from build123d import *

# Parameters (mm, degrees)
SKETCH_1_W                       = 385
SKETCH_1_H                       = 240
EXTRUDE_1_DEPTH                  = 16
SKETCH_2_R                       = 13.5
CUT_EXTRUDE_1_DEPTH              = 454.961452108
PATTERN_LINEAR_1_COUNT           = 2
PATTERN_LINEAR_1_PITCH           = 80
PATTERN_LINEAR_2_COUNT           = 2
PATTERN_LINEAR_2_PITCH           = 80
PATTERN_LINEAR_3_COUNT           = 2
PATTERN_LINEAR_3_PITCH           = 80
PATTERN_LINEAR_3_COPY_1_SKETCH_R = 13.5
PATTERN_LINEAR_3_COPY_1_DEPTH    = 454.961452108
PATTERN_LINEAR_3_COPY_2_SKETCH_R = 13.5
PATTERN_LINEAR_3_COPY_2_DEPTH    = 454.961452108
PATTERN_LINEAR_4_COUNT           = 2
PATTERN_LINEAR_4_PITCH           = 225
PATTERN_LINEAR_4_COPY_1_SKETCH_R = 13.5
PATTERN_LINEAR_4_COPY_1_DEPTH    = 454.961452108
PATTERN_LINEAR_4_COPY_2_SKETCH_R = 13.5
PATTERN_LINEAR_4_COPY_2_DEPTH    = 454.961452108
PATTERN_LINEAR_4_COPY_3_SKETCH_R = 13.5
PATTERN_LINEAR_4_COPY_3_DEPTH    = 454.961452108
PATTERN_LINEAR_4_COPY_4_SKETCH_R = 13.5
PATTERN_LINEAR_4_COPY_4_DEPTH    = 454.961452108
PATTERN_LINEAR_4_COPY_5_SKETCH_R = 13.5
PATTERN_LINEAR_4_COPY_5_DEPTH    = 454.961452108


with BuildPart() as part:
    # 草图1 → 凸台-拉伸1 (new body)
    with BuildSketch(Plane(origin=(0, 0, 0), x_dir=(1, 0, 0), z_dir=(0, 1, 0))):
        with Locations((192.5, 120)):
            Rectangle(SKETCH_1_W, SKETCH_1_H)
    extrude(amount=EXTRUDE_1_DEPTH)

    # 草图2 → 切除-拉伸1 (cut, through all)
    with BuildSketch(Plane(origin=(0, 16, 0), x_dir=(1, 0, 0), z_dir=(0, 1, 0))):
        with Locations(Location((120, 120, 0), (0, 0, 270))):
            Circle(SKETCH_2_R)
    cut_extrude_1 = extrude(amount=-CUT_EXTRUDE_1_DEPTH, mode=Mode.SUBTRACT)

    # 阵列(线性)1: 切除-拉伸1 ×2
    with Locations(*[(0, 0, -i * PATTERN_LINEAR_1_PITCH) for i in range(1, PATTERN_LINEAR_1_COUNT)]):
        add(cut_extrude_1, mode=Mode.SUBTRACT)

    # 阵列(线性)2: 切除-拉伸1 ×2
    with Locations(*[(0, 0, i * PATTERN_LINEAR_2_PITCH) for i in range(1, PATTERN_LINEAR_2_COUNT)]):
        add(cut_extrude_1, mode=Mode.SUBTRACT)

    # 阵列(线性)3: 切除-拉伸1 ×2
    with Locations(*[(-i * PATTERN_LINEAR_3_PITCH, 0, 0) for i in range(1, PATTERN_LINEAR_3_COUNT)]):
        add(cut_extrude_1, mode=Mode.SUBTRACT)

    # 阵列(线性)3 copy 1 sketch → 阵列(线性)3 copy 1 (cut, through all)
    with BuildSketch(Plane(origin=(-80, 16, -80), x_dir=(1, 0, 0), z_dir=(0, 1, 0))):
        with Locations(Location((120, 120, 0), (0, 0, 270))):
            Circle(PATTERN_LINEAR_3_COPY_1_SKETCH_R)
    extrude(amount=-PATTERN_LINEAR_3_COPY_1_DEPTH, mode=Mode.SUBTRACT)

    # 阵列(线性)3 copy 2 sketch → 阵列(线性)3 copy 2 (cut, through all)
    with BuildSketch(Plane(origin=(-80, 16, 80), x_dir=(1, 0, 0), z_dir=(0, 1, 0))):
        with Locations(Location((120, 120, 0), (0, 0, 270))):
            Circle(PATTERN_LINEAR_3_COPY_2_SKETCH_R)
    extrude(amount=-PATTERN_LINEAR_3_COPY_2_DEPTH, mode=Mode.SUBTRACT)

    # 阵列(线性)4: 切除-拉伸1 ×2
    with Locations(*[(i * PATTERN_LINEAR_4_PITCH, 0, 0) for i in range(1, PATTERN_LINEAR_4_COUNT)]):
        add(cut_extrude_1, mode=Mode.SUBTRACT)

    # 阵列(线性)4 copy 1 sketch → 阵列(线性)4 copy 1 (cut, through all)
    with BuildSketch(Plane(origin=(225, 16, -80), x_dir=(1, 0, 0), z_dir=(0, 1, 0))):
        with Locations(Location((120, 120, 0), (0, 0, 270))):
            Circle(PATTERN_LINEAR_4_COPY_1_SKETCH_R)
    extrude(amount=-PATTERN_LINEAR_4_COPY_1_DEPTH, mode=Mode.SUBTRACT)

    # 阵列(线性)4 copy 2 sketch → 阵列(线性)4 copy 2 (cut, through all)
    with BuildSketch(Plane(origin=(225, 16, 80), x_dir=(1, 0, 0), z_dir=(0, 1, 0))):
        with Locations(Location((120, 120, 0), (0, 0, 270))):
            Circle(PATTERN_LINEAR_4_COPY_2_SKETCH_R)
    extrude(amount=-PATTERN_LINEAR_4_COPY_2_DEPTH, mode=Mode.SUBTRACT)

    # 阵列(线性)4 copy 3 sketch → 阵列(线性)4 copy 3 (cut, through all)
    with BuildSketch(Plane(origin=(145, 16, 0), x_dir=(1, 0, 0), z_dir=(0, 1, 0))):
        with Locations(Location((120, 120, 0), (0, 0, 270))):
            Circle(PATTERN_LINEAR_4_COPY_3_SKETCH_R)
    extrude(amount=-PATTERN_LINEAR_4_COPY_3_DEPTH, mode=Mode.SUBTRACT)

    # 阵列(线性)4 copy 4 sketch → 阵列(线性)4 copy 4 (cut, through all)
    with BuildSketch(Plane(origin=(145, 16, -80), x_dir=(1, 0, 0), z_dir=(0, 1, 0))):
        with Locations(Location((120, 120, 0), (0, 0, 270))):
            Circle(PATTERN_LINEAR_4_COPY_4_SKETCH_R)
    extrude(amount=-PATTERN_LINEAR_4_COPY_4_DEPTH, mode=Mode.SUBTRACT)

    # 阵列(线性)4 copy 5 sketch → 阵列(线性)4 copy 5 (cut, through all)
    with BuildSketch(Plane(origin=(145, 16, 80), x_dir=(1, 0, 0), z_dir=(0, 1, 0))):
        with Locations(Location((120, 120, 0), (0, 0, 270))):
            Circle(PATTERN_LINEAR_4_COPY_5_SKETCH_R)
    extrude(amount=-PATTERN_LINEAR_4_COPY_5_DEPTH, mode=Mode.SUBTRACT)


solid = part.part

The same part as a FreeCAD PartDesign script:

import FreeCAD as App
import Part
import Sketcher
from FreeCAD import Vector
Q = App.Units.Quantity

doc = App.newDocument("Part")
body = doc.addObject("PartDesign::Body", "Body")

sketch1 = body.newObject("Sketcher::SketchObject", "Sketch")
sketch1.AttachmentSupport = (doc.getObject("XZ_Plane"), [""])
sketch1.MapMode = "FlatFace"
sketch1.addGeometry([
    Part.LineSegment(Vector(0, -240, 0), Vector(0, 0, 0)),
    Part.LineSegment(Vector(0, 0, 0), Vector(385, 0, 0)),
    Part.LineSegment(Vector(385, 0, 0), Vector(385, -240, 0)),
    Part.LineSegment(Vector(385, -240, 0), Vector(0, -240, 0)),
], False)
sketch1.addConstraint([
    Sketcher.Constraint("Coincident", 0, 2, 1, 1),
    Sketcher.Constraint("Coincident", 1, 2, 2, 1),
    Sketcher.Constraint("Coincident", 2, 2, 3, 1),
    Sketcher.Constraint("Coincident", 3, 2, 0, 1),
    Sketcher.Constraint("Vertical", 0),
    Sketcher.Constraint("Horizontal", 1),
    Sketcher.Constraint("Vertical", 2),
    Sketcher.Constraint("Horizontal", 3),
    Sketcher.Constraint("Coincident", 0, 2, -1, 1),
    Sketcher.Constraint("DistanceX", 1, 1, 1, 2, Q("385 mm")),
    Sketcher.Constraint("DistanceY", 0, 1, 0, 2, Q("240 mm")),
])
pad1 = body.newObject("PartDesign::Pad", "Pad")
pad1.Profile = sketch1
pad1.Length = 16
pad1.Reversed = True

sketch2 = body.newObject("Sketcher::SketchObject", "Sketch001")
sketch2.AttachmentSupport = (doc.getObject("XZ_Plane"), [""])
sketch2.MapMode = "FlatFace"
sketch2.AttachmentOffset = App.Placement(Vector(0, 0, -16), App.Rotation())
sketch2.addGeometry(Part.Circle(Vector(120, -120, 0), Vector(0, 0, 1), 14), False)
sketch2.addConstraint([
    Sketcher.Constraint("Diameter", 0, Q("27 mm")),
    Sketcher.Constraint("DistanceX", -1, 1, 0, 3, Q("120 mm")),
    Sketcher.Constraint("DistanceY", 0, 3, -1, 1, Q("120 mm")),
])
pocket1 = body.newObject("PartDesign::Pocket", "Pocket")
pocket1.Profile = sketch2
pocket1.Type = "ThroughAll"
pocket1.Reversed = True
doc.recompute()

linearpattern = body.newObject("PartDesign::LinearPattern", "LinearPattern")
linearpattern.Originals = [pocket1]
linearpattern.Direction = (doc.getObject("Z_Axis"), [""])
linearpattern.Mode = "offset"
linearpattern.Offset = 80
linearpattern.Occurrences = 2
linearpattern.Reversed = True
body.Tip = linearpattern
doc.recompute()

linearpattern2 = body.newObject("PartDesign::LinearPattern", "LinearPattern001")
linearpattern2.Originals = [pocket1]
linearpattern2.Direction = (doc.getObject("Z_Axis"), [""])
linearpattern2.Mode = "offset"
linearpattern2.Offset = 80
linearpattern2.Occurrences = 2
body.Tip = linearpattern2
doc.recompute()

linearpattern3 = body.newObject("PartDesign::LinearPattern", "LinearPattern002")
linearpattern3.Originals = [pocket1]
linearpattern3.Direction = (doc.getObject("X_Axis"), [""])
linearpattern3.Mode = "offset"
linearpattern3.Offset = 80
linearpattern3.Occurrences = 2
linearpattern3.Reversed = True
body.Tip = linearpattern3

sketch3 = body.newObject("Sketcher::SketchObject", "Sketch002")
sketch3.AttachmentSupport = (doc.getObject("XZ_Plane"), [""])
sketch3.MapMode = "FlatFace"
sketch3.AttachmentOffset = App.Placement(Vector(0, 0, -16), App.Rotation())
sketch3.addGeometry(Part.Circle(Vector(40, -200, 0), Vector(0, 0, 1), 14), False)
sketch3.addConstraint([
    Sketcher.Constraint("Diameter", 0, Q("27 mm")),
    Sketcher.Constraint("DistanceX", -1, 1, 0, 3, Q("40 mm")),
    Sketcher.Constraint("DistanceY", 0, 3, -1, 1, Q("200 mm")),
])
pocket2 = body.newObject("PartDesign::Pocket", "Pocket001")
pocket2.Profile = sketch3
pocket2.Type = "ThroughAll"
pocket2.Reversed = True

sketch4 = body.newObject("Sketcher::SketchObject", "Sketch003")
sketch4.AttachmentSupport = (doc.getObject("XZ_Plane"), [""])
sketch4.MapMode = "FlatFace"
sketch4.AttachmentOffset = App.Placement(Vector(0, 0, -16), App.Rotation())
sketch4.addGeometry(Part.Circle(Vector(40, -40, 0), Vector(0, 0, 1), 14), False)
sketch4.addConstraint([
    Sketcher.Constraint("Diameter", 0, Q("27 mm")),
    Sketcher.Constraint("DistanceX", -1, 1, 0, 3, Q("40 mm")),
    Sketcher.Constraint("DistanceY", 0, 3, -1, 1, Q("40 mm")),
])
pocket3 = body.newObject("PartDesign::Pocket", "Pocket002")
pocket3.Profile = sketch4
pocket3.Type = "ThroughAll"
pocket3.Reversed = True
doc.recompute()

linearpattern4 = body.newObject("PartDesign::LinearPattern", "LinearPattern003")
linearpattern4.Originals = [pocket1]
linearpattern4.Direction = (doc.getObject("X_Axis"), [""])
linearpattern4.Mode = "offset"
linearpattern4.Offset = 225
linearpattern4.Occurrences = 2
body.Tip = linearpattern4

sketch5 = body.newObject("Sketcher::SketchObject", "Sketch004")
sketch5.AttachmentSupport = (doc.getObject("XZ_Plane"), [""])
sketch5.MapMode = "FlatFace"
sketch5.AttachmentOffset = App.Placement(Vector(0, 0, -16), App.Rotation())
sketch5.addGeometry(Part.Circle(Vector(345, -200, 0), Vector(0, 0, 1), 14), False)
sketch5.addConstraint([
    Sketcher.Constraint("Diameter", 0, Q("27 mm")),
    Sketcher.Constraint("DistanceX", -1, 1, 0, 3, Q("345 mm")),
    Sketcher.Constraint("DistanceY", 0, 3, -1, 1, Q("200 mm")),
])
pocket4 = body.newObject("PartDesign::Pocket", "Pocket003")
pocket4.Profile = sketch5
pocket4.Type = "ThroughAll"
pocket4.Reversed = True

sketch6 = body.newObject("Sketcher::SketchObject", "Sketch005")
sketch6.AttachmentSupport = (doc.getObject("XZ_Plane"), [""])
sketch6.MapMode = "FlatFace"
sketch6.AttachmentOffset = App.Placement(Vector(0, 0, -16), App.Rotation())
sketch6.addGeometry(Part.Circle(Vector(345, -40, 0), Vector(0, 0, 1), 14), False)
sketch6.addConstraint([
    Sketcher.Constraint("Diameter", 0, Q("27 mm")),
    Sketcher.Constraint("DistanceX", -1, 1, 0, 3, Q("345 mm")),
    Sketcher.Constraint("DistanceY", 0, 3, -1, 1, Q("40 mm")),
])
pocket5 = body.newObject("PartDesign::Pocket", "Pocket004")
pocket5.Profile = sketch6
pocket5.Type = "ThroughAll"
pocket5.Reversed = True

sketch7 = body.newObject("Sketcher::SketchObject", "Sketch006")
sketch7.AttachmentSupport = (doc.getObject("XZ_Plane"), [""])
sketch7.MapMode = "FlatFace"
sketch7.AttachmentOffset = App.Placement(Vector(0, 0, -16), App.Rotation())
sketch7.addGeometry(Part.Circle(Vector(265, -120, 0), Vector(0, 0, 1), 14), False)
sketch7.addConstraint([
    Sketcher.Constraint("Diameter", 0, Q("27 mm")),
    Sketcher.Constraint("DistanceX", -1, 1, 0, 3, Q("265 mm")),
    Sketcher.Constraint("DistanceY", 0, 3, -1, 1, Q("120 mm")),
])
pocket6 = body.newObject("PartDesign::Pocket", "Pocket005")
pocket6.Profile = sketch7
pocket6.Type = "ThroughAll"
pocket6.Reversed = True

sketch8 = body.newObject("Sketcher::SketchObject", "Sketch007")
sketch8.AttachmentSupport = (doc.getObject("XZ_Plane"), [""])
sketch8.MapMode = "FlatFace"
sketch8.AttachmentOffset = App.Placement(Vector(0, 0, -16), App.Rotation())
sketch8.addGeometry(Part.Circle(Vector(265, -200, 0), Vector(0, 0, 1), 14), False)
sketch8.addConstraint([
    Sketcher.Constraint("Diameter", 0, Q("27 mm")),
    Sketcher.Constraint("DistanceX", -1, 1, 0, 3, Q("265 mm")),
    Sketcher.Constraint("DistanceY", 0, 3, -1, 1, Q("200 mm")),
])
pocket7 = body.newObject("PartDesign::Pocket", "Pocket006")
pocket7.Profile = sketch8
pocket7.Type = "ThroughAll"
pocket7.Reversed = True

sketch9 = body.newObject("Sketcher::SketchObject", "Sketch008")
sketch9.AttachmentSupport = (doc.getObject("XZ_Plane"), [""])
sketch9.MapMode = "FlatFace"
sketch9.AttachmentOffset = App.Placement(Vector(0, 0, -16), App.Rotation())
sketch9.addGeometry(Part.Circle(Vector(265, -40, 0), Vector(0, 0, 1), 14), False)
sketch9.addConstraint([
    Sketcher.Constraint("Diameter", 0, Q("27 mm")),
    Sketcher.Constraint("DistanceX", -1, 1, 0, 3, Q("265 mm")),
    Sketcher.Constraint("DistanceY", 0, 3, -1, 1, Q("40 mm")),
])
pocket8 = body.newObject("PartDesign::Pocket", "Pocket007")
pocket8.Profile = sketch9
pocket8.Type = "ThroughAll"
pocket8.Reversed = True

doc.recompute()
